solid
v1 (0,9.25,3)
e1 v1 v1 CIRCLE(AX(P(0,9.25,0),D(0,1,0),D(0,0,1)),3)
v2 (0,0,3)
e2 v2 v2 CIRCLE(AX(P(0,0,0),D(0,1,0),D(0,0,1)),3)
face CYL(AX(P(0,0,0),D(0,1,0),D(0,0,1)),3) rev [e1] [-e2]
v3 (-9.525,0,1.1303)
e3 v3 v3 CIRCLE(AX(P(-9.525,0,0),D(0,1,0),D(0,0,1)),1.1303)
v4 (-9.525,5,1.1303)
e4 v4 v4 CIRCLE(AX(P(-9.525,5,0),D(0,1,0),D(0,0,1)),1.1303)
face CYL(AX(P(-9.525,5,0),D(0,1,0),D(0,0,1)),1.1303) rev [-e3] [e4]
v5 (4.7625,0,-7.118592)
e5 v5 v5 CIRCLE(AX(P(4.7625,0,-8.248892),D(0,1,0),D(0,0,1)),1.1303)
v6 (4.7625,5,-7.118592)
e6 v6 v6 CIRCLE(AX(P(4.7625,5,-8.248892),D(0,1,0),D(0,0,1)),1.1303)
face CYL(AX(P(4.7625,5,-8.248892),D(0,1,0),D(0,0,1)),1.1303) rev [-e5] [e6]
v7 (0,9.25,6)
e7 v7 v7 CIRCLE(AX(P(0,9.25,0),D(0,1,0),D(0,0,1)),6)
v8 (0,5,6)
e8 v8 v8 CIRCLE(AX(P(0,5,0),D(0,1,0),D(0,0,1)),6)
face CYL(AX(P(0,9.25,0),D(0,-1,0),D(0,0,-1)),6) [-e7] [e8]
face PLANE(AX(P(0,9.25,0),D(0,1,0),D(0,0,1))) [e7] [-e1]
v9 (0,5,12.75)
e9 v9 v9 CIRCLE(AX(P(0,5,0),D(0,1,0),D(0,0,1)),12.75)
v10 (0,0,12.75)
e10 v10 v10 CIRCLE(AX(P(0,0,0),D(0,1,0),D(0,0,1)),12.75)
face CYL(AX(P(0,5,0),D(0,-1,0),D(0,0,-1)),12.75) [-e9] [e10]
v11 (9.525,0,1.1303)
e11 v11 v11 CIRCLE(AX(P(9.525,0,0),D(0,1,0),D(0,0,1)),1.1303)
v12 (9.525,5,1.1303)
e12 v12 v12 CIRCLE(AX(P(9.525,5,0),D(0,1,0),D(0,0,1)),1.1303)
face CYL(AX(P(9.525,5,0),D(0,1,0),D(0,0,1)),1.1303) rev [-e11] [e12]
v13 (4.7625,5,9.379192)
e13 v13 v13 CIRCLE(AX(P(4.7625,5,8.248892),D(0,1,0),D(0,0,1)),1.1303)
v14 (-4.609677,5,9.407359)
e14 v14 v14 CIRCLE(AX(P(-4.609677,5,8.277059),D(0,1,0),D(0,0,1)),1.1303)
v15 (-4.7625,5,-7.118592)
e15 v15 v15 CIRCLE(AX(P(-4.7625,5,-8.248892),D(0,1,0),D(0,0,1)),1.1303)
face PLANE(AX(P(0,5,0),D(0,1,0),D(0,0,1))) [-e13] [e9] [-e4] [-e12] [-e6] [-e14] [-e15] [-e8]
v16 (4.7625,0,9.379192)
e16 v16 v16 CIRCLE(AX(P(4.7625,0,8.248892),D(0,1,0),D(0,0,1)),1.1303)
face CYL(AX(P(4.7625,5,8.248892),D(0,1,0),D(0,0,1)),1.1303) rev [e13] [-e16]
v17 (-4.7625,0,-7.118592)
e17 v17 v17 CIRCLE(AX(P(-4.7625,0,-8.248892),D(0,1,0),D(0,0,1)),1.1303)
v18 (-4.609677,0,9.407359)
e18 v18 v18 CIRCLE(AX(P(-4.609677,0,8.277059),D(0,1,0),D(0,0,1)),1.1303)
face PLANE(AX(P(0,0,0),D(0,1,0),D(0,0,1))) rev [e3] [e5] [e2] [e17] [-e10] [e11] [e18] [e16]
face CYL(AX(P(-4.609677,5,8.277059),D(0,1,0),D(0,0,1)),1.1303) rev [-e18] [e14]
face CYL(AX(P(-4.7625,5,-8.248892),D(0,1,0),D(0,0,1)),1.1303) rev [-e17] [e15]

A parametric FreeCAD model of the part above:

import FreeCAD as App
import Part
import Sketcher

doc = App.newDocument("Part")
params = doc.addObject("Spreadsheet::Sheet", "Params")
for row, (alias, value) in enumerate([
    ("sketch1_diameter", "25.5 mm"),
    ("pad1_length", "5 mm"),
    ("sketch2_diameter", "12 mm"),
    ("pad2_length", "4.25 mm"),
    ("sketch3_diameter", "6 mm"),
    ("hole_diameter", "2.2606 mm"),
], start=1):
    params.set(f"A{row}", alias)
    params.set(f"B{row}", "=" + value)
    params.setAlias(f"B{row}", alias)

body = doc.addObject("PartDesign::Body", "Body")

# Sketch on XZ plane
sketch1 = body.newObject("Sketcher::SketchObject", "Sketch")
sketch1.AttachmentSupport = (doc.getObject("XZ_Plane"), [""])
sketch1.MapMode = "FlatFace"
sketch1.addGeometry(Part.Circle(App.Vector(0, 0, 0), App.Vector(0, 0, 1), 12.75), False)
sketch1.addConstraint([
    Sketcher.Constraint("Coincident", 0, 3, -1, 1),
    Sketcher.Constraint("Diameter", 0, 25.5),
])
sketch1.setExpression("Constraints[1]", "Params.sketch1_diameter")
pad1 = body.newObject("PartDesign::Pad", "Pad")
pad1.Profile = sketch1
pad1.setExpression("Length", "Params.pad1_length")
pad1.Reversed = True

# Sketch on XZ plane
sketch2 = body.newObject("Sketcher::SketchObject", "Sketch001")
sketch2.AttachmentSupport = (doc.getObject("XZ_Plane"), [""])
sketch2.MapMode = "FlatFace"
sketch2.AttachmentOffset = App.Placement(App.Vector(0, 0, -5), App.Rotation())
sketch2.addGeometry(Part.Circle(App.Vector(0, 0, 0), App.Vector(0, 0, 1), 6), False)
sketch2.addConstraint([
    Sketcher.Constraint("Coincident", 0, 3, -1, 1),
    Sketcher.Constraint("Diameter", 0, 12.0),
])
sketch2.setExpression("Constraints[1]", "Params.sketch2_diameter")
pad2 = body.newObject("PartDesign::Pad", "Pad001")
pad2.Profile = sketch2
pad2.setExpression("Length", "Params.pad2_length")
pad2.Reversed = True

# Sketch on XZ plane
sketch3 = body.newObject("Sketcher::SketchObject", "Sketch002")
sketch3.AttachmentSupport = (doc.getObject("XZ_Plane"), [""])
sketch3.MapMode = "FlatFace"
sketch3.AttachmentOffset = App.Placement(App.Vector(0, 0, -9.25), App.Rotation())
sketch3.addGeometry(Part.Circle(App.Vector(0, 0, 0), App.Vector(0, 0, 1), 3), False)
sketch3.addConstraint([
    Sketcher.Constraint("Coincident", 0, 3, -1, 1),
    Sketcher.Constraint("Diameter", 0, 6.0),
])
sketch3.setExpression("Constraints[1]", "Params.sketch3_diameter")
pocket1 = body.newObject("PartDesign::Pocket", "Pocket")
pocket1.Profile = sketch3
pocket1.Type = "ThroughAll"
pocket1.Reversed = True

# Sketch on XZ plane
sketch4 = body.newObject("Sketcher::SketchObject", "Sketch003")
sketch4.AttachmentSupport = (doc.getObject("XZ_Plane"), [""])
sketch4.MapMode = "FlatFace"
sketch4.AttachmentOffset = App.Placement(App.Vector(0, 0, -5), App.Rotation())
sketch4.addGeometry([
    Part.Circle(App.Vector(-4.609677, 8.277059, 0), App.Vector(0, 0, 1), 1.1303),  # 0
    Part.Circle(App.Vector(-9.525, 0, 0), App.Vector(0, 0, 1), 1.1303),  # 1
    Part.Circle(App.Vector(4.7625, 8.248892, 0), App.Vector(0, 0, 1), 1.1303),  # 2
    Part.Circle(App.Vector(9.525, 0, 0), App.Vector(0, 0, 1), 1.1303),  # 3
    Part.Circle(App.Vector(-4.7625, -8.248892, 0), App.Vector(0, 0, 1), 1.1303),  # 4
    Part.Circle(App.Vector(4.7625, -8.248892, 0), App.Vector(0, 0, 1), 1.1303),  # 5
], False)
sketch4.addConstraint([
    Sketcher.Constraint("Equal", 0, 1),
    Sketcher.Constraint("Equal", 1, 2),
    Sketcher.Constraint("Equal", 2, 3),
    Sketcher.Constraint("Equal", 3, 4),
    Sketcher.Constraint("Equal", 4, 5),
    Sketcher.Constraint("Symmetric", 1, 3, 3, 3, -1, 1),
    Sketcher.Constraint("Symmetric", 2, 3, 4, 3, -1, 1),
    Sketcher.Constraint("Symmetric", 4, 3, 5, 3, -2),
    Sketcher.Constraint("PointOnObject", 1, 3, -1),
    Sketcher.Constraint("Diameter", 0, 2.2606),
    Sketcher.Constraint("DistanceX", 1, 3, 3, 3, 19.05),
    Sketcher.Constraint("DistanceX", 4, 3, 2, 3, 9.525),
    Sketcher.Constraint("DistanceY", -1, 1, 0, 3, 8.277059),
    Sketcher.Constraint("DistanceY", -1, 1, 2, 3, 8.248892),
    Sketcher.Constraint("DistanceX", 0, 3, -1, 1, 4.609677),
])
doc.recompute()
hole = body.newObject("PartDesign::Hole", "Hole")
hole.Profile = sketch4
hole.ThreadType = "None"
hole.setExpression("Diameter", "Params.hole_diameter")
hole.DepthType = "ThroughAll"
hole.Reversed = True

doc.recompute()
